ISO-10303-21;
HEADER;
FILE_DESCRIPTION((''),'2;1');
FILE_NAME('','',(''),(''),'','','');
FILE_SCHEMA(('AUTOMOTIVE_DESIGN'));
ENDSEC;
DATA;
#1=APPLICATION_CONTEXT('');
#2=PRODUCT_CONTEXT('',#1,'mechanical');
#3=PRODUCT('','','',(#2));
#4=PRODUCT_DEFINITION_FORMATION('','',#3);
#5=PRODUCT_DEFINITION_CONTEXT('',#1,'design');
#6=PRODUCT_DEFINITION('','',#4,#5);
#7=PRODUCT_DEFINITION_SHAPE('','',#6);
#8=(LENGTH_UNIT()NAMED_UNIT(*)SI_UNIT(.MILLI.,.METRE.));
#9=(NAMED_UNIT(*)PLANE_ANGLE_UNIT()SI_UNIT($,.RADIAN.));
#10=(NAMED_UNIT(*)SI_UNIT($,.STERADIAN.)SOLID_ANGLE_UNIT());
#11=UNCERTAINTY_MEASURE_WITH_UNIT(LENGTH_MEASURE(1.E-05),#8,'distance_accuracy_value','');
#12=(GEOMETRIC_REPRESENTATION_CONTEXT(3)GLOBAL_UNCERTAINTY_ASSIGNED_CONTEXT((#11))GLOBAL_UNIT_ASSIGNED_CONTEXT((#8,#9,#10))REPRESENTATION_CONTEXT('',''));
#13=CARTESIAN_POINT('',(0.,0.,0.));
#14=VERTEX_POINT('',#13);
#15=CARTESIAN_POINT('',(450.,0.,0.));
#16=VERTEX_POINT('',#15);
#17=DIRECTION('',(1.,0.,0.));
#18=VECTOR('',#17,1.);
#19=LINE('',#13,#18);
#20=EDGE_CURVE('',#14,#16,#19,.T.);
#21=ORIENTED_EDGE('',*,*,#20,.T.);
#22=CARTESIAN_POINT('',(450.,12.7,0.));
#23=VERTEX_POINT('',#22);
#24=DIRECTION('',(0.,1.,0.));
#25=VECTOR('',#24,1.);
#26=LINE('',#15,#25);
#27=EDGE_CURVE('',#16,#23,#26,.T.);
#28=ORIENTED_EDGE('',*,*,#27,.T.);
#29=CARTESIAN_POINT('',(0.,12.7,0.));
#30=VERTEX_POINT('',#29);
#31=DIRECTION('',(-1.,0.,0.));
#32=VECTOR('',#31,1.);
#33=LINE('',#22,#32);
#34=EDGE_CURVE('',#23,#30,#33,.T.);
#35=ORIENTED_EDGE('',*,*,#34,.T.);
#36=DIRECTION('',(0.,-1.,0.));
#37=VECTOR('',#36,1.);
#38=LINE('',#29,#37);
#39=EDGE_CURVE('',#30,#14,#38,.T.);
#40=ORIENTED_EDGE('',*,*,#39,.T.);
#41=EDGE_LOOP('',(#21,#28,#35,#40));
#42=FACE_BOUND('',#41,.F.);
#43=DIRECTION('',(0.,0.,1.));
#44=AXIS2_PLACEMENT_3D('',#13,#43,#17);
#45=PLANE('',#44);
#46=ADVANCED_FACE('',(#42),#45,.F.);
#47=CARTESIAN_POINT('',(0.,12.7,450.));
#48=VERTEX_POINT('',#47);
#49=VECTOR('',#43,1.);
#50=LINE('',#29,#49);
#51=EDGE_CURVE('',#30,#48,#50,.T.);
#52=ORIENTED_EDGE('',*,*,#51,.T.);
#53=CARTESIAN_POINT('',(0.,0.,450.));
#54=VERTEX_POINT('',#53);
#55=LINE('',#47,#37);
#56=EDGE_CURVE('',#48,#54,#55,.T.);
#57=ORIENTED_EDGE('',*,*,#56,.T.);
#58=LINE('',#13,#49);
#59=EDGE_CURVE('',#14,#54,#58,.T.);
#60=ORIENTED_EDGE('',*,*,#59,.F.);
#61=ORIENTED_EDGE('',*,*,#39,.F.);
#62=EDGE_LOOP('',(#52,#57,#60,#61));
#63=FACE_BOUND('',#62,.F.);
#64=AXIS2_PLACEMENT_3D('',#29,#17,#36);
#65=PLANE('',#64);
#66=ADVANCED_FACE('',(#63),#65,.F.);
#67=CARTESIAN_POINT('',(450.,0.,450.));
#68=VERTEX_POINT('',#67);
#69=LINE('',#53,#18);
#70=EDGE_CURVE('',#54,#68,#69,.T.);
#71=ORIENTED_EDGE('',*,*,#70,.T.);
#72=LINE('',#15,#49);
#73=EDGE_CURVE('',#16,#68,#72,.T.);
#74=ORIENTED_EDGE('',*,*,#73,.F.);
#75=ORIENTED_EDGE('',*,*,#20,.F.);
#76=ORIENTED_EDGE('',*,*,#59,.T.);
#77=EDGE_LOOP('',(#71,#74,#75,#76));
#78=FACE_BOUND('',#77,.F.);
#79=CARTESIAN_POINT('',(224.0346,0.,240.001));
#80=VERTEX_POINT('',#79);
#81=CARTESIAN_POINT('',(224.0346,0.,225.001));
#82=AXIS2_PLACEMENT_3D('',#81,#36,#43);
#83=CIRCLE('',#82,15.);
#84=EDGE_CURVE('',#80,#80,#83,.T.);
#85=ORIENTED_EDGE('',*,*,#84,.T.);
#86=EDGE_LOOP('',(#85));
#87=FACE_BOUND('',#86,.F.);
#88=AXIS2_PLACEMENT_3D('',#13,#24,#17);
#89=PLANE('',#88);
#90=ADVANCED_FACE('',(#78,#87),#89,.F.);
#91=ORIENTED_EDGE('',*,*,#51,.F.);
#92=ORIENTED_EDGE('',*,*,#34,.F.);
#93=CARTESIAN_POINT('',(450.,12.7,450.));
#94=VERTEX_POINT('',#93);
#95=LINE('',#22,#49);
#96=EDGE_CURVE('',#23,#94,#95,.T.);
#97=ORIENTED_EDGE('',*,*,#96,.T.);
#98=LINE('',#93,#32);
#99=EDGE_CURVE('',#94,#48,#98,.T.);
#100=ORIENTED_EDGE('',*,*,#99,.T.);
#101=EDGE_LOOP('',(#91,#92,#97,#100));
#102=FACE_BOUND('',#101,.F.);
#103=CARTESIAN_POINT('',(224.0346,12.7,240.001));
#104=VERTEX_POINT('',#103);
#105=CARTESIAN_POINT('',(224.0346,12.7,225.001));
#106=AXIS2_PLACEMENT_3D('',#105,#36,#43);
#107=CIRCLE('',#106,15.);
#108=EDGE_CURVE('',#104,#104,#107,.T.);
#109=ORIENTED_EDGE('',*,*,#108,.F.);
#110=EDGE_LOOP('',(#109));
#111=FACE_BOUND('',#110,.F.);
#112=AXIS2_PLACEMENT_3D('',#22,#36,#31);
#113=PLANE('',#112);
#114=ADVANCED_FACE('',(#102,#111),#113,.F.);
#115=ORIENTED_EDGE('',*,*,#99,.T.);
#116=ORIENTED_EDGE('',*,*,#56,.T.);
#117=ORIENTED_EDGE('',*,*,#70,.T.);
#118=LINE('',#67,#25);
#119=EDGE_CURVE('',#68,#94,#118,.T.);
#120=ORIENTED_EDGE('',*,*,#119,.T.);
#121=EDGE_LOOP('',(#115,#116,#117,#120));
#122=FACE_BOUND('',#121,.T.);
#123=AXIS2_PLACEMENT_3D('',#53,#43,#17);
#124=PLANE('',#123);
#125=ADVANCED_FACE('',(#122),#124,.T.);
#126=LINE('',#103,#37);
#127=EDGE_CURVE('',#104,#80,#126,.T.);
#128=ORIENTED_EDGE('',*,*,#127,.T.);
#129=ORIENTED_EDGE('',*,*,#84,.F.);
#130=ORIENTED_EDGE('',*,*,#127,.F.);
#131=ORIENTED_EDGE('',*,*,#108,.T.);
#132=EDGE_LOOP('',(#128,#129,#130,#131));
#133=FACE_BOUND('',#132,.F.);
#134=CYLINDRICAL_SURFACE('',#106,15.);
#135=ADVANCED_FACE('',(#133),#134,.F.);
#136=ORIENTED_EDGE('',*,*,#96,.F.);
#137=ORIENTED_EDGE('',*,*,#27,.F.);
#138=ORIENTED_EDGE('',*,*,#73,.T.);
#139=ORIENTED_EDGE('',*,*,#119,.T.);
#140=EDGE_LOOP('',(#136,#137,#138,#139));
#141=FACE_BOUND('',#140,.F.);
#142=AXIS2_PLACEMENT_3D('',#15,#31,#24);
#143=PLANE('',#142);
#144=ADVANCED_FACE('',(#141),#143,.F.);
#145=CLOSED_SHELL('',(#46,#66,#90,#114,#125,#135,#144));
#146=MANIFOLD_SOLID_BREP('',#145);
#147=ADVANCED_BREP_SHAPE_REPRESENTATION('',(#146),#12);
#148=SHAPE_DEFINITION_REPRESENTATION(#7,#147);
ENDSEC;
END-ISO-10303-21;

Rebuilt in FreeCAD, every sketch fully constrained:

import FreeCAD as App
import Part
import Sketcher

V = App.Vector
Q = App.Units.Quantity

doc = App.newDocument("Part")
body = doc.addObject("PartDesign::Body", "Body")

sketch1 = body.newObject("Sketcher::SketchObject", "Sketch")
sketch1.AttachmentSupport = (doc.getObject("XY_Plane"), [""])
sketch1.MapMode = "FlatFace"
sketch1.addGeometry(Part.LineSegment(V(0, 13, 0), V(0, 0, 0)), False)
sketch1.addGeometry(Part.LineSegment(V(0, 0, 0), V(450, 0, 0)), False)
sketch1.addGeometry(Part.LineSegment(V(450, 0, 0), V(450, 13, 0)), False)
sketch1.addGeometry(Part.LineSegment(V(450, 13, 0), V(0, 13, 0)), False)
sketch1.addConstraint(Sketcher.Constraint("Coincident", 0, 2, 1, 1))
sketch1.addConstraint(Sketcher.Constraint("Coincident", 1, 2, 2, 1))
sketch1.addConstraint(Sketcher.Constraint("Coincident", 2, 2, 3, 1))
sketch1.addConstraint(Sketcher.Constraint("Coincident", 3, 2, 0, 1))
sketch1.addConstraint(Sketcher.Constraint("Vertical", 0))
sketch1.addConstraint(Sketcher.Constraint("Horizontal", 1))
sketch1.addConstraint(Sketcher.Constraint("Vertical", 2))
sketch1.addConstraint(Sketcher.Constraint("Horizontal", 3))
sketch1.addConstraint(Sketcher.Constraint("Coincident", 0, 2, -1, 1))
sketch1.addConstraint(Sketcher.Constraint("DistanceX", 1, 1, 1, 2, Q("450 mm")))
sketch1.addConstraint(Sketcher.Constraint("DistanceY", 0, 2, 0, 1, Q("12.7 mm")))
pad1 = body.newObject("PartDesign::Pad", "Pad")
pad1.Profile = sketch1
pad1.Length = 450

sketch2 = body.newObject("Sketcher::SketchObject", "Sketch001")
sketch2.AttachmentSupport = (doc.getObject("XZ_Plane"), [""])
sketch2.MapMode = "FlatFace"
sketch2.AttachmentOffset = App.Placement(V(0, 0, -12.7), App.Rotation())
sketch2.addGeometry(Part.Circle(V(224, 225, 0), V(0, 0, 1), 15), False)
sketch2.addConstraint(Sketcher.Constraint("Diameter", 0, Q("30 mm")))
sketch2.addConstraint(Sketcher.Constraint("DistanceY", -1, 1, 0, 3, Q("225.001 mm")))
sketch2.addConstraint(Sketcher.Constraint("DistanceX", -1, 1, 0, 3, Q("224.0346 mm")))
doc.recompute()
hole = body.newObject("PartDesign::Hole", "Hole")
hole.Profile = sketch2
hole.ThreadType = "None"
hole.Diameter = 30
hole.DepthType = "ThroughAll"
hole.Reversed = True

doc.recompute()
